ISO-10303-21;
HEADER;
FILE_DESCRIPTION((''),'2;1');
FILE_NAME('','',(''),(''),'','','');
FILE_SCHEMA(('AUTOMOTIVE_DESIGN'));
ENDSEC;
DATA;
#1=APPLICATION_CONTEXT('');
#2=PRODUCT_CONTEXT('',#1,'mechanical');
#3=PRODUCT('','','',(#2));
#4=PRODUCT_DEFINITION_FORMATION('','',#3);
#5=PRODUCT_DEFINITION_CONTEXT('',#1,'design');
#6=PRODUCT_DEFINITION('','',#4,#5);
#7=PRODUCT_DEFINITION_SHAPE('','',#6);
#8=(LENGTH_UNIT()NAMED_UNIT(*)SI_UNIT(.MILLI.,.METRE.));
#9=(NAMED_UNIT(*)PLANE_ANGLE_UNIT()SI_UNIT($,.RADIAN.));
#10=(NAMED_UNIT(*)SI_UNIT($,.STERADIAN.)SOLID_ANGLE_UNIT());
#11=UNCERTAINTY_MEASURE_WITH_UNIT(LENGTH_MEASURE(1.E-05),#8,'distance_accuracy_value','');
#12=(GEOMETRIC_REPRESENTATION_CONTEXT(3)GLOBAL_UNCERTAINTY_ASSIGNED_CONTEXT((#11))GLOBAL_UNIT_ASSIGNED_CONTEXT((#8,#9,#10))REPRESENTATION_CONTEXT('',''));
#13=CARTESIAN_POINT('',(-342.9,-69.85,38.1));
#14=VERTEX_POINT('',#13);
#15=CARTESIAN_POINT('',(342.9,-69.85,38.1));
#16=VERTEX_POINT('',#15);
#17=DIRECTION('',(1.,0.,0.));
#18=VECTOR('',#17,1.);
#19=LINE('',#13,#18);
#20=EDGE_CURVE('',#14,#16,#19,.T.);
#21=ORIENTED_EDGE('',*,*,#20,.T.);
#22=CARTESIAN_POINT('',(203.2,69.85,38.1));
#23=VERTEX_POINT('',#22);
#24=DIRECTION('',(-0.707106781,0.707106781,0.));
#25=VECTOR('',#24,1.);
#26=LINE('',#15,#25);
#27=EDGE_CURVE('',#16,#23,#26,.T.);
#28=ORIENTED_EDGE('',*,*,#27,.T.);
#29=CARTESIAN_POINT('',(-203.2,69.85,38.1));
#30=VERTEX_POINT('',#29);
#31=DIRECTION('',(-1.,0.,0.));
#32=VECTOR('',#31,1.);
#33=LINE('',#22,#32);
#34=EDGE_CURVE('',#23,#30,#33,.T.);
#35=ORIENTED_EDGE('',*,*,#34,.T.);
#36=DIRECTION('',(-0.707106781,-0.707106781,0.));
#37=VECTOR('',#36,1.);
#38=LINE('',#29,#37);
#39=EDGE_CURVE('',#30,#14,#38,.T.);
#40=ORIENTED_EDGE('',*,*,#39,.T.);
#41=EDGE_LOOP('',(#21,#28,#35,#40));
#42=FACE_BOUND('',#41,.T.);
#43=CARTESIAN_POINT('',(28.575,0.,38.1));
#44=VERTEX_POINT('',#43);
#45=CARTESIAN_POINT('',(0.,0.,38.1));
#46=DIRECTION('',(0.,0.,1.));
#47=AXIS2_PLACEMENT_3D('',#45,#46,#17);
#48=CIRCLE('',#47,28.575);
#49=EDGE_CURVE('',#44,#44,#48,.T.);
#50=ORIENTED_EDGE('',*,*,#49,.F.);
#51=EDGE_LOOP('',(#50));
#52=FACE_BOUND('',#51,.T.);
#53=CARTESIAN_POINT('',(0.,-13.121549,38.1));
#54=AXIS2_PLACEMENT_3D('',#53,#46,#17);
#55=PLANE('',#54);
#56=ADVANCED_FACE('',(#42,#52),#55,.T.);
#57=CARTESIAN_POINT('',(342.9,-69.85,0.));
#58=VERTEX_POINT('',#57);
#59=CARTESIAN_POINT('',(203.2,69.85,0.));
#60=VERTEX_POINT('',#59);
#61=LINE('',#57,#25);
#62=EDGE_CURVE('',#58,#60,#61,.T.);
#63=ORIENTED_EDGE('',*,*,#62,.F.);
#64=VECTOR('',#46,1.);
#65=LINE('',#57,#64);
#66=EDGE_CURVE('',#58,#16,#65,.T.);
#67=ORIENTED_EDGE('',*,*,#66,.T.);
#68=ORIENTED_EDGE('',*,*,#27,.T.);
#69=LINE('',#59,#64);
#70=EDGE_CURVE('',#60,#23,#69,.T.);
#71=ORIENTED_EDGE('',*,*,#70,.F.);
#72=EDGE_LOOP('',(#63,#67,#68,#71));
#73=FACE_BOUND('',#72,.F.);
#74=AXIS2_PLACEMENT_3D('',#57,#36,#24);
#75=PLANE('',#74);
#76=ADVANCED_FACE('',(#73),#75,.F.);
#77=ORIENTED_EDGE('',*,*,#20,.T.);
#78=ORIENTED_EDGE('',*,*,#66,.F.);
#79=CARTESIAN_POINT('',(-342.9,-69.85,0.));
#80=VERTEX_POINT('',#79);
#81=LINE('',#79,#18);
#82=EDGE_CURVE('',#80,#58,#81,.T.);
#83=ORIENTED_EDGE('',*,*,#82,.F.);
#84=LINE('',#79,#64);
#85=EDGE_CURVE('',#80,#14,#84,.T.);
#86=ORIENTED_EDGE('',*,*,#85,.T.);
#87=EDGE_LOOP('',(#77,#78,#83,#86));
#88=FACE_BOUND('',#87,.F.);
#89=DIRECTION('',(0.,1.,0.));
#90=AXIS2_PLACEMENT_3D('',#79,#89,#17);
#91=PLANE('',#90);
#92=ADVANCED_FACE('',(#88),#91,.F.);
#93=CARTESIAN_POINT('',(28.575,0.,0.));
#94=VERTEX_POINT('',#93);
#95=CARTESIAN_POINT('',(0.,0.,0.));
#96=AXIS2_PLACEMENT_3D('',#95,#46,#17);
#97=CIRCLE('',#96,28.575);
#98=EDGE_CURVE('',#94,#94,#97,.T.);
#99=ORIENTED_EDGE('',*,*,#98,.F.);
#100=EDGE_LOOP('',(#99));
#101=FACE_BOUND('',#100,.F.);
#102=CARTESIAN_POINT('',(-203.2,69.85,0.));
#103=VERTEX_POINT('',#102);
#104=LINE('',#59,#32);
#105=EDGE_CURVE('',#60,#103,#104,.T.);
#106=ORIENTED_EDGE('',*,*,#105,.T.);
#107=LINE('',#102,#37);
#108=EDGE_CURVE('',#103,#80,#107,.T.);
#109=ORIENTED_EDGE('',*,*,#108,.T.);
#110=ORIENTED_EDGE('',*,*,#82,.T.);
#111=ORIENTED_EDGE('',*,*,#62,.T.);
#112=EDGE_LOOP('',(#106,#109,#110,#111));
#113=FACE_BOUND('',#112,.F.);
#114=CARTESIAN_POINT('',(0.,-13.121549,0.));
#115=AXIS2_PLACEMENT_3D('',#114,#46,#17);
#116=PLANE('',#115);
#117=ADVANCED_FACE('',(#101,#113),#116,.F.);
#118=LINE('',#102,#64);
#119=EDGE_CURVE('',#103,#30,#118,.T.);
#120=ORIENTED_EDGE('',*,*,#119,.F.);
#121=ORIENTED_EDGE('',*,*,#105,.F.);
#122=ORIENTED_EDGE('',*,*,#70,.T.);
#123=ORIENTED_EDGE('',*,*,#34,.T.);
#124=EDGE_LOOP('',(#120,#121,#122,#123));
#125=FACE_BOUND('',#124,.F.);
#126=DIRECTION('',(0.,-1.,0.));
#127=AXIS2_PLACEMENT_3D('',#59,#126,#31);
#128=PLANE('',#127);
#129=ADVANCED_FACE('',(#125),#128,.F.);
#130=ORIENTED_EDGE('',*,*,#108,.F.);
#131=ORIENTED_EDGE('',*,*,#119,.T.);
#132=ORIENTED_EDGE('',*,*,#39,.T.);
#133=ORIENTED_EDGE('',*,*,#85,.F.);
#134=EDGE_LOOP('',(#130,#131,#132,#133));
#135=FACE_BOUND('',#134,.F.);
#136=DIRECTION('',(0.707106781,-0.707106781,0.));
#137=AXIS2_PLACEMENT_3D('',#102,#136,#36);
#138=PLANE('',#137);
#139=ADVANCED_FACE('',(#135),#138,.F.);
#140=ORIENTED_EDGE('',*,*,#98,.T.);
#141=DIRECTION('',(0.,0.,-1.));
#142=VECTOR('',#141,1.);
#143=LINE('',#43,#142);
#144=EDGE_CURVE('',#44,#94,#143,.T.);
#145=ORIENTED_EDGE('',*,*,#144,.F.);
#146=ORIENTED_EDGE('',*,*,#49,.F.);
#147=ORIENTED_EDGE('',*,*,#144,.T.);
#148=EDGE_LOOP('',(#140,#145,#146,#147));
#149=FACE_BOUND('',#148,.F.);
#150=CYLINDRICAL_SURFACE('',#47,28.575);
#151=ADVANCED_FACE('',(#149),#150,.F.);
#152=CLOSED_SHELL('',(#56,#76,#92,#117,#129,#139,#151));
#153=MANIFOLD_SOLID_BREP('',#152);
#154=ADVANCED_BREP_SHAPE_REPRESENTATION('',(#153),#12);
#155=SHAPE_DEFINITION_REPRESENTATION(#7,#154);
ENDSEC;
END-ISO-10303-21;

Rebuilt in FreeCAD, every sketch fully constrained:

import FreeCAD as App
import Part
import Sketcher

V = App.Vector
Q = App.Units.Quantity


def add_polygon(sketch, points):
    """Adds a closed chain of lines whose ends are joined by coincident constraints."""
    first, n = sketch.GeometryCount, len(points)
    for a, b in zip(points, points[1:] + points[:1]):
        sketch.addGeometry(Part.LineSegment(App.Vector(*a, 0), App.Vector(*b, 0)), False)
    for i in range(n):
        sketch.addConstraint(Sketcher.Constraint("Coincident", first + i, 2, first + (i + 1) % n, 1))

doc = App.newDocument("Part")
body = doc.addObject("PartDesign::Body", "Body")

# Sketch on XY plane
sketch1 = doc.addObject("Sketcher::SketchObject", "Sketch")
body.addObject(sketch1)
sketch1.AttachmentSupport = (doc.XY_Plane, [""])
sketch1.MapMode = "FlatFace"
add_polygon(sketch1, [(343, -70), (203, 70), (-203, 70), (-343, -70)])  # lines 0-3
sketch1.addConstraint(Sketcher.Constraint("Horizontal", 1))
sketch1.addConstraint(Sketcher.Constraint("Horizontal", 3))
sketch1.addConstraint(Sketcher.Constraint("Perpendicular", 0, 2))
sketch1.addConstraint(Sketcher.Constraint("Equal", 0, 2))
sketch1.addConstraint(Sketcher.Constraint("DistanceX", 1, 2, 1, 1, Q("16 in")))
sketch1.addConstraint(Sketcher.Constraint("DistanceX", 3, 1, 3, 2, Q("27 in")))
sketch1.addConstraint(Sketcher.Constraint("DistanceX", -1, 1, 0, 2, Q("8 in")))
sketch1.addConstraint(Sketcher.Constraint("DistanceY", -1, 1, 0, 2, Q("2.75 in")))
pad1 = doc.addObject("PartDesign::Pad", "Pad")
body.addObject(pad1)
pad1.Profile = sketch1
pad1.Length = Q("1.5 in")

# Sketch on XY plane
sketch2 = doc.addObject("Sketcher::SketchObject", "Sketch001")
body.addObject(sketch2)
sketch2.AttachmentSupport = (doc.XY_Plane, [""])
sketch2.MapMode = "FlatFace"
sketch2.AttachmentOffset = App.Placement(V(0, 0, 1.5 * 25.4), App.Rotation())
sketch2.addGeometry(Part.Circle(V(0, 0, 0), V(0, 0, 1), 29), False)
sketch2.addConstraint(Sketcher.Constraint("Coincident", 0, 3, -1, 1))
sketch2.addConstraint(Sketcher.Constraint("Diameter", 0, Q("2.25 in")))
pocket1 = doc.addObject("PartDesign::Pocket", "Pocket")
body.addObject(pocket1)
pocket1.Profile = sketch2
pocket1.Type = "ThroughAll"

doc.recompute()
